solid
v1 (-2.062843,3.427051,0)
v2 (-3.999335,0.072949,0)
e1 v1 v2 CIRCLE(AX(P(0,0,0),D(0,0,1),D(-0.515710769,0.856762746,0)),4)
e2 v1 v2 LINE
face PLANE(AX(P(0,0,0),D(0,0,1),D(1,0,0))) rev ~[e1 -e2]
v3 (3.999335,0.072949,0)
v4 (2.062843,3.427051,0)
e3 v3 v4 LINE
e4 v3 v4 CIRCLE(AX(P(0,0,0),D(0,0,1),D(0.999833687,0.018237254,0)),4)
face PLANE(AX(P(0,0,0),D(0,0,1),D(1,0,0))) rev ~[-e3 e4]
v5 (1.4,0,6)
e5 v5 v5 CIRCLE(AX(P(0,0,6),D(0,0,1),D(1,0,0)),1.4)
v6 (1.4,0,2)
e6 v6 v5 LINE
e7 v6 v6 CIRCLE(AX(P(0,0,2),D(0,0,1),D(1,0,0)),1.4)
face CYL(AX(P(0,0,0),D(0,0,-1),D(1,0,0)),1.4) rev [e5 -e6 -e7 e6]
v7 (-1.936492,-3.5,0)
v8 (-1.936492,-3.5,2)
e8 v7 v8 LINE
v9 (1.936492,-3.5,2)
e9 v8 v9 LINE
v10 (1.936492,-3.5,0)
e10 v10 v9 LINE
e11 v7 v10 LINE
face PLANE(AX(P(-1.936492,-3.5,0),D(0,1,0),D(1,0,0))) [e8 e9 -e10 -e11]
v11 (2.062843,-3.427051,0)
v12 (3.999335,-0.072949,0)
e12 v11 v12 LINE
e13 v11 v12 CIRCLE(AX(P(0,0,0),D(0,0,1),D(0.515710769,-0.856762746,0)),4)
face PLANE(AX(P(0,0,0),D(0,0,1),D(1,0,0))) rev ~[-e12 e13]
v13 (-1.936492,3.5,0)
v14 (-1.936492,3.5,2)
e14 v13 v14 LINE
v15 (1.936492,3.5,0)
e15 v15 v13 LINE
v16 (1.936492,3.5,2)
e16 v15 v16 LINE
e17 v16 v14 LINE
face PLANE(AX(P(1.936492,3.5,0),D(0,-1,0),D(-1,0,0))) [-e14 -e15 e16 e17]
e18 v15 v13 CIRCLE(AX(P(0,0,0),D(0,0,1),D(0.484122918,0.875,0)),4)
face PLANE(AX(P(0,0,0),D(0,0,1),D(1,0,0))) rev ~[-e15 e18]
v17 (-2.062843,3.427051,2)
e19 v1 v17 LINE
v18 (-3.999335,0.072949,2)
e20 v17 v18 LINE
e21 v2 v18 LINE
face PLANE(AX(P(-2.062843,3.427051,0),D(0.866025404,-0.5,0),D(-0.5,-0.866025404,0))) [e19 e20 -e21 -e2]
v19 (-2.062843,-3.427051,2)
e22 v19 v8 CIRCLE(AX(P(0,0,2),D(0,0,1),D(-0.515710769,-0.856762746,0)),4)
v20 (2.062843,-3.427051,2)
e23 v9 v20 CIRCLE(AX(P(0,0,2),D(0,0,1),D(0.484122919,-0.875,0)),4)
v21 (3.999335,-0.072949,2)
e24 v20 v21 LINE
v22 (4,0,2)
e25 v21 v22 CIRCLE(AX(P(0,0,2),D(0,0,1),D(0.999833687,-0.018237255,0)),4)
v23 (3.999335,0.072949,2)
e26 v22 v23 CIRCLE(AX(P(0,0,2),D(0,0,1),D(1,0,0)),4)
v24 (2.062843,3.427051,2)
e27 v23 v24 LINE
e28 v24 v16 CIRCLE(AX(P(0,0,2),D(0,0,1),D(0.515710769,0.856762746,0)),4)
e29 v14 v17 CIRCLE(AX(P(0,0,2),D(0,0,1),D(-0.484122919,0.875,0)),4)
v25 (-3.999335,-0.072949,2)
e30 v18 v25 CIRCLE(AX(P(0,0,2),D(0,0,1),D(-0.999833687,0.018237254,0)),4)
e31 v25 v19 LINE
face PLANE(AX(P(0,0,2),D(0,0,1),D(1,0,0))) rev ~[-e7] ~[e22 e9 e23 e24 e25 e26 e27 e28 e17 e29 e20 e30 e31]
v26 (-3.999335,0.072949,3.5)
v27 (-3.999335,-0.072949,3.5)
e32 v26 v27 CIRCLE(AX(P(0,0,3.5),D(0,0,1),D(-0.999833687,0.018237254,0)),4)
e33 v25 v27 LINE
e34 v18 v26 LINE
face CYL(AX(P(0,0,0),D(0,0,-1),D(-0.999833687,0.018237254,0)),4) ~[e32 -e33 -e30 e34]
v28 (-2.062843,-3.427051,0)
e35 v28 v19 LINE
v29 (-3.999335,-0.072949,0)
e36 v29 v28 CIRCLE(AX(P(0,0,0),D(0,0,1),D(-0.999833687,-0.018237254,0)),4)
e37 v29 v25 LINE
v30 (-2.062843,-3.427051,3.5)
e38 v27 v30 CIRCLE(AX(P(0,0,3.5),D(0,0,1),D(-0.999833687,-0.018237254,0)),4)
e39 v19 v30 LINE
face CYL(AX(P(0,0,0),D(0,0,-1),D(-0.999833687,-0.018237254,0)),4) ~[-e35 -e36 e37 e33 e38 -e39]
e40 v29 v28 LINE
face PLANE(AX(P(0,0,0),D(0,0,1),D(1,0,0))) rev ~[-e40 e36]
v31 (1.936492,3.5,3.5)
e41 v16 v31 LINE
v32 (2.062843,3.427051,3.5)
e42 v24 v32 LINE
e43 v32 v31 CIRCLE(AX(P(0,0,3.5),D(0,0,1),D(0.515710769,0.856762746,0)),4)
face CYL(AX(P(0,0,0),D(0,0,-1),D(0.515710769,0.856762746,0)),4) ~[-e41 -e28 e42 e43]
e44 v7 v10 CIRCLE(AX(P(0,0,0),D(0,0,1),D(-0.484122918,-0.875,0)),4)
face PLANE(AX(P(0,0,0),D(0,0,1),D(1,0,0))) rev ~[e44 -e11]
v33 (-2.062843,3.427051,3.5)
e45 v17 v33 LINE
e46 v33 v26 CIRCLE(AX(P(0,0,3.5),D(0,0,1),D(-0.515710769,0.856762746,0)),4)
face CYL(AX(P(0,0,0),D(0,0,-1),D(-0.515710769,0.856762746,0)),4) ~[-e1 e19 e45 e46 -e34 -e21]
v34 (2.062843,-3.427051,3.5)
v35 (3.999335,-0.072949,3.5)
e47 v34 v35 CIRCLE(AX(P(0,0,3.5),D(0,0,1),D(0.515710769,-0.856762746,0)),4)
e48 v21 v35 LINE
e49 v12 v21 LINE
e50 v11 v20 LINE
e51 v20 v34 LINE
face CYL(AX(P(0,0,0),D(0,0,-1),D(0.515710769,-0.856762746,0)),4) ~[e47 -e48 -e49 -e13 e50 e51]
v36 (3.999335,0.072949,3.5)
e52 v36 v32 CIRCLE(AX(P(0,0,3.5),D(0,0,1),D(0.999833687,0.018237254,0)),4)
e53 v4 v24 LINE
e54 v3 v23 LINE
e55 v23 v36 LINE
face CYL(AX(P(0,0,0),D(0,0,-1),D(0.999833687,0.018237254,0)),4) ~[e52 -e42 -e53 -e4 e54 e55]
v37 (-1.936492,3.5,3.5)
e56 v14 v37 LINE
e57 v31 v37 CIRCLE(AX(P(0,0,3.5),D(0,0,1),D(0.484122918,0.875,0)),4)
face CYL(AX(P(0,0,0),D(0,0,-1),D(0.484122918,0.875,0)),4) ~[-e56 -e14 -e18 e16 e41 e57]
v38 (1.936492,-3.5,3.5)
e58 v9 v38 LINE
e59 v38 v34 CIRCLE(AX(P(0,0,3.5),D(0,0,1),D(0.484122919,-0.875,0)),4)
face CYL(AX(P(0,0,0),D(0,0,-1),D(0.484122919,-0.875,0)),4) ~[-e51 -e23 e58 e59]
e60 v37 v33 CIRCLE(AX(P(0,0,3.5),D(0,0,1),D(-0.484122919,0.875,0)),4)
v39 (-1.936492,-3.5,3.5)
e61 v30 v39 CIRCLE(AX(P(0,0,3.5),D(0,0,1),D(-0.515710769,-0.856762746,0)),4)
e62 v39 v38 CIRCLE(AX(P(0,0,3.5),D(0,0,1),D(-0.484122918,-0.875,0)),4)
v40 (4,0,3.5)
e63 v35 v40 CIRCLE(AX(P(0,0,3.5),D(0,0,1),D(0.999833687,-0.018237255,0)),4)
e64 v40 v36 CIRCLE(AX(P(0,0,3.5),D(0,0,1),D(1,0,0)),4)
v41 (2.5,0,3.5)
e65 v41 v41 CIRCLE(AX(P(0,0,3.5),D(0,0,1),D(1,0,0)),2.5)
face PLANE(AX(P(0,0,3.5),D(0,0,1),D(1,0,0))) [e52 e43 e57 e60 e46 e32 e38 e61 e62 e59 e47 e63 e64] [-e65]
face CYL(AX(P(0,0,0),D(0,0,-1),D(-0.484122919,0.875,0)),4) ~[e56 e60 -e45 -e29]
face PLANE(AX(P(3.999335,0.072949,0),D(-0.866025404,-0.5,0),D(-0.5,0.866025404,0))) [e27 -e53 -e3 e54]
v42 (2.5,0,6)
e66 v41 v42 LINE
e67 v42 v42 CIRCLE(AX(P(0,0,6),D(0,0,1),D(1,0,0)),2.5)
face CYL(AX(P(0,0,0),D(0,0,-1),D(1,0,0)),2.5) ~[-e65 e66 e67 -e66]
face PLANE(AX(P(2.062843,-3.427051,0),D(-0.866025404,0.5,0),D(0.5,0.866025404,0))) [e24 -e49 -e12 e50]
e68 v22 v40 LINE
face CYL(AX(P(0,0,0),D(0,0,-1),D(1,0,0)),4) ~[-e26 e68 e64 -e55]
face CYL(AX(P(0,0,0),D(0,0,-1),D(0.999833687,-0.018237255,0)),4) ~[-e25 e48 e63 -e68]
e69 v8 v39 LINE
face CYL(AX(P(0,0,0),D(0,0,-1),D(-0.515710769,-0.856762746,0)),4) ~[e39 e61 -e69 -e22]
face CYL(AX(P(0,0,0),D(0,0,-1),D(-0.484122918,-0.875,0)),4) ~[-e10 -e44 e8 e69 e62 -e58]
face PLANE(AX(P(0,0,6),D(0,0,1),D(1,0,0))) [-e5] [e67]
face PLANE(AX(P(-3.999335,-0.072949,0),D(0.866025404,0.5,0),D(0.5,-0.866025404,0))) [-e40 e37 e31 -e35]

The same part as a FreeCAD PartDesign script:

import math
import FreeCAD as App
import Part
import Sketcher

V = App.Vector
Q = App.Units.Quantity

doc = App.newDocument("Part")
body = doc.addObject("PartDesign::Body", "Body")

# Sketch on XY plane
sketch1 = doc.addObject("Sketcher::SketchObject", "Sketch")
body.addObject(sketch1)
sketch1.AttachmentSupport = (doc.XY_Plane, [""])
sketch1.MapMode = "FlatFace"
sketch1.addGeometry([
    Part.Circle(V(0, 0, 0), V(0, 0, 1), 2.5),
    Part.Circle(V(0, 0, 0), V(0, 0, 1), 1.4),
], False)
sketch1.addConstraint([
    Sketcher.Constraint("Coincident", 0, 3, -1, 1),
    Sketcher.Constraint("Coincident", 1, 3, -1, 1),
    Sketcher.Constraint("Diameter", 0, 5.0),
    Sketcher.Constraint("Diameter", 1, 2.8),
])
pad1 = doc.addObject("PartDesign::Pad", "Pad")
body.addObject(pad1)
pad1.Profile = sketch1
pad1.Length = 6

# Sketch on XY plane
sketch2 = doc.addObject("Sketcher::SketchObject", "Sketch001")
body.addObject(sketch2)
sketch2.AttachmentSupport = (doc.XY_Plane, [""])
sketch2.MapMode = "FlatFace"
sketch2.addGeometry([
    Part.ArcOfCircle(Part.Circle(V(0, 0, 0), V(0, 0, 1), 4), math.radians(-1.04), math.radians(0)),  # 0
    Part.ArcOfCircle(Part.Circle(V(0, 0, 0), V(0, 0, 1), 4), math.radians(0), math.radians(1.04)),  # 1
    Part.ArcOfCircle(Part.Circle(V(0, 0, 0), V(0, 0, 1), 4), math.radians(1), math.radians(59)),  # 2
    Part.ArcOfCircle(Part.Circle(V(0, 0, 0), V(0, 0, 1), 4), math.radians(58.96), math.radians(61.04)),  # 3
    Part.ArcOfCircle(Part.Circle(V(0, 0, 0), V(0, 0, 1), 4), math.radians(61), math.radians(119)),  # 4
    Part.ArcOfCircle(Part.Circle(V(0, 0, 0), V(0, 0, 1), 4), math.radians(118.96), math.radians(121.04)),  # 5
    Part.ArcOfCircle(Part.Circle(V(0, 0, 0), V(0, 0, 1), 4), math.radians(121), math.radians(179)),  # 6
    Part.ArcOfCircle(Part.Circle(V(0, 0, 0), V(0, 0, 1), 4), math.radians(178.96), math.radians(181.04)),  # 7
    Part.ArcOfCircle(Part.Circle(V(0, 0, 0), V(0, 0, 1), 4), math.radians(-179), math.radians(-121)),  # 8
    Part.ArcOfCircle(Part.Circle(V(0, 0, 0), V(0, 0, 1), 4), math.radians(-121.04), math.radians(-118.96)),  # 9
    Part.ArcOfCircle(Part.Circle(V(0, 0, 0), V(0, 0, 1), 4), math.radians(-119), math.radians(-61)),  # 10
    Part.ArcOfCircle(Part.Circle(V(0, 0, 0), V(0, 0, 1), 4), math.radians(-61.04), math.radians(-58.96)),  # 11
    Part.ArcOfCircle(Part.Circle(V(0, 0, 0), V(0, 0, 1), 4), math.radians(-59), math.radians(-1)),  # 12
    Part.Circle(V(0, 0, 0), V(0, 0, 1), 2.5),  # 13
], False)
sketch2.addConstraint([
    Sketcher.Constraint("Tangent", 0, 2, 1, 1),
    Sketcher.Constraint("Tangent", 1, 2, 2, 1),
    Sketcher.Constraint("Tangent", 2, 2, 3, 1),
    Sketcher.Constraint("Tangent", 3, 2, 4, 1),
    Sketcher.Constraint("Tangent", 4, 2, 5, 1),
    Sketcher.Constraint("Tangent", 5, 2, 6, 1),
    Sketcher.Constraint("Tangent", 6, 2, 7, 1),
    Sketcher.Constraint("Tangent", 7, 2, 8, 1),
    Sketcher.Constraint("Tangent", 8, 2, 9, 1),
    Sketcher.Constraint("Tangent", 9, 2, 10, 1),
    Sketcher.Constraint("Tangent", 10, 2, 11, 1),
    Sketcher.Constraint("Tangent", 11, 2, 12, 1),
    Sketcher.Constraint("Tangent", 12, 2, 0, 1),
    Sketcher.Constraint("Coincident", 0, 3, -1, 1),
    Sketcher.Constraint("Coincident", 2, 3, -1, 1),
    Sketcher.Constraint("Coincident", 4, 3, -1, 1),
    Sketcher.Constraint("Coincident", 6, 3, -1, 1),
    Sketcher.Constraint("Coincident", 8, 3, -1, 1),
    Sketcher.Constraint("Coincident", 10, 3, -1, 1),
    Sketcher.Constraint("Coincident", 13, 3, -1, 1),
    Sketcher.Constraint("PointOnObject", 0, 2, -1),
    Sketcher.Constraint("Horizontal", 3, 2, 4, 2),
    Sketcher.Constraint("Horizontal", 2, 2, 5, 2),
    Sketcher.Constraint("Horizontal", 1, 2, 6, 2),
    Sketcher.Constraint("Horizontal", 9, 2, 10, 2),
    Sketcher.Constraint("Horizontal", 8, 2, 11, 2),
    Sketcher.Constraint("Horizontal", 7, 2, 12, 2),
    Sketcher.Constraint("Vertical", 6, 2, 7, 2),
    Sketcher.Constraint("Vertical", 5, 2, 8, 2),
    Sketcher.Constraint("Vertical", 4, 2, 9, 2),
    Sketcher.Constraint("Diameter", 13, 5.0),
    Sketcher.Constraint("Radius", 0, 4.0),
    Sketcher.Constraint("DistanceY", -1, 1, 3, 2, 3.5),
    Sketcher.Constraint("DistanceY", 7, 2, 5, 2, 3.5),
    Sketcher.Constraint("DistanceY", 1, 2, 2, 2, 3.354102),
])
pad2 = doc.addObject("PartDesign::Pad", "Pad001")
body.addObject(pad2)
pad2.Profile = sketch2
pad2.Length = 3.5

# Sketch on XY plane
sketch3 = doc.addObject("Sketcher::SketchObject", "Sketch002")
body.addObject(sketch3)
sketch3.AttachmentSupport = (doc.XY_Plane, [""])
sketch3.MapMode = "FlatFace"
sketch3.addGeometry([
    Part.ArcOfCircle(Part.Circle(V(0, 0, 0), V(0, 0, 1), 4), math.radians(-1.04), math.radians(0)),  # 0
    Part.ArcOfCircle(Part.Circle(V(0, 0, 0), V(0, 0, 1), 4), math.radians(0), math.radians(1.04)),  # 1
    Part.LineSegment(V(4, 0.07, 0), V(2.06, 3.43, 0)),  # 2
    Part.ArcOfCircle(Part.Circle(V(0, 0, 0), V(0, 0, 1), 4), math.radians(58.96), math.radians(61.04)),  # 3
    Part.LineSegment(V(1.94, 3.5, 0), V(-1.94, 3.5, 0)),  # 4
    Part.ArcOfCircle(Part.Circle(V(0, 0, 0), V(0, 0, 1), 4), math.radians(118.96), math.radians(121.04)),  # 5
    Part.LineSegment(V(-2.06, 3.43, 0), V(-4, 0.07, 0)),  # 6
    Part.ArcOfCircle(Part.Circle(V(0, 0, 0), V(0, 0, 1), 4), math.radians(178.96), math.radians(181.04)),  # 7
    Part.LineSegment(V(-4, -0.07, 0), V(-2.06, -3.43, 0)),  # 8
    Part.ArcOfCircle(Part.Circle(V(0, 0, 0), V(0, 0, 1), 4), math.radians(-121.04), math.radians(-118.96)),  # 9
    Part.LineSegment(V(-1.94, -3.5, 0), V(1.94, -3.5, 0)),  # 10
    Part.ArcOfCircle(Part.Circle(V(0, 0, 0), V(0, 0, 1), 4), math.radians(-61.04), math.radians(-58.96)),  # 11
    Part.LineSegment(V(2.06, -3.43, 0), V(4, -0.07, 0)),  # 12
    Part.Circle(V(0, 0, 0), V(0, 0, 1), 1.4),  # 13
], False)
sketch3.addConstraint([
    Sketcher.Constraint("Tangent", 0, 2, 1, 1),
    Sketcher.Constraint("Coincident", 1, 2, 2, 1),
    Sketcher.Constraint("Coincident", 2, 2, 3, 1),
    Sketcher.Constraint("Coincident", 3, 2, 4, 1),
    Sketcher.Constraint("Coincident", 4, 2, 5, 1),
    Sketcher.Constraint("Coincident", 5, 2, 6, 1),
    Sketcher.Constraint("Coincident", 6, 2, 7, 1),
    Sketcher.Constraint("Coincident", 7, 2, 8, 1),
    Sketcher.Constraint("Coincident", 8, 2, 9, 1),
    Sketcher.Constraint("Coincident", 9, 2, 10, 1),
    Sketcher.Constraint("Coincident", 10, 2, 11, 1),
    Sketcher.Constraint("Coincident", 11, 2, 12, 1),
    Sketcher.Constraint("Coincident", 12, 2, 0, 1),
    Sketcher.Constraint("Horizontal", 4),
    Sketcher.Constraint("Horizontal", 10),
    Sketcher.Constraint("Coincident", 0, 3, -1, 1),
    Sketcher.Constraint("Coincident", 3, 3, -1, 1),
    Sketcher.Constraint("Coincident", 5, 3, -1, 1),
    Sketcher.Constraint("Coincident", 7, 3, -1, 1),
    Sketcher.Constraint("Coincident", 9, 3, -1, 1),
    Sketcher.Constraint("Coincident", 11, 3, -1, 1),
    Sketcher.Constraint("Coincident", 13, 3, -1, 1),
    Sketcher.Constraint("Equal", 0, 1),
    Sketcher.Constraint("Equal", 1, 3),
    Sketcher.Constraint("Equal", 3, 5),
    Sketcher.Constraint("Equal", 5, 7),
    Sketcher.Constraint("Equal", 7, 9),
    Sketcher.Constraint("Equal", 9, 11),
    Sketcher.Constraint("PointOnObject", 0, 2, -1),
    Sketcher.Constraint("Parallel", 2, 8),
    Sketcher.Constraint("Parallel", 6, 12),
    Sketcher.Constraint("Horizontal", 2, 2, 5, 2),
    Sketcher.Constraint("Horizontal", 1, 2, 6, 2),
    Sketcher.Constraint("Horizontal", 8, 2, 11, 2),
    Sketcher.Constraint("Vertical", 6, 2, 7, 2),
    Sketcher.Constraint("Vertical", 4, 2, 9, 2),
    Sketcher.Constraint("Radius", 0, 4.0),
    Sketcher.Constraint("Diameter", 13, 2.8),
    Sketcher.Constraint("Angle", 2, Q("120 deg")),
    Sketcher.Constraint("DistanceY", -1, 1, 3, 2, 3.5),
    Sketcher.Constraint("DistanceY", 7, 2, 5, 2, 3.5),
])
pocket1 = doc.addObject("PartDesign::Pocket", "Pocket")
body.addObject(pocket1)
pocket1.Profile = sketch3
pocket1.Length = 2
pocket1.Reversed = True

doc.recompute()
